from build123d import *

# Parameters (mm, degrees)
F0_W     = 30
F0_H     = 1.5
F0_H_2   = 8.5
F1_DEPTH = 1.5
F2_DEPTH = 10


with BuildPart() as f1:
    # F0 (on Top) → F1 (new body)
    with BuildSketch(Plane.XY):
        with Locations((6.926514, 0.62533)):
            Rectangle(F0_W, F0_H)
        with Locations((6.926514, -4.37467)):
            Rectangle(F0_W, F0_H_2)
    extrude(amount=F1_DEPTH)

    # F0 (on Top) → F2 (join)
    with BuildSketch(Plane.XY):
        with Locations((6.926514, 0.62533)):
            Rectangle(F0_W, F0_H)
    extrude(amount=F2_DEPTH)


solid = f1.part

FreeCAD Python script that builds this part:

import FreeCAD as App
import Part
import Sketcher

V = App.Vector

doc = App.newDocument("Part")
body = doc.addObject("PartDesign::Body", "Body")

sketch1 = body.newObject("Sketcher::SketchObject", "Sketch")
sketch1.AttachmentSupport = (doc.getObject("XY_Plane"), [""])
sketch1.MapMode = "FlatFace"
sketch1.addGeometry([
    Part.LineSegment(V(-8, 1, 0), V(-8, -9, 0)),
    Part.LineSegment(V(-8, -9, 0), V(22, -9, 0)),
    Part.LineSegment(V(22, -9, 0), V(22, 1, 0)),
    Part.LineSegment(V(22, 1, 0), V(-8, 1, 0)),
], False)
sketch1.addConstraint([
    Sketcher.Constraint("Coincident", 0, 2, 1, 1),
    Sketcher.Constraint("Coincident", 1, 2, 2, 1),
    Sketcher.Constraint("Coincident", 2, 2, 3, 1),
    Sketcher.Constraint("Coincident", 3, 2, 0, 1),
    Sketcher.Constraint("Vertical", 0),
    Sketcher.Constraint("Horizontal", 1),
    Sketcher.Constraint("Vertical", 2),
    Sketcher.Constraint("Horizontal", 3),
    Sketcher.Constraint("DistanceX", 1, 1, 1, 2, 30.0),
    Sketcher.Constraint("DistanceY", 0, 2, 0, 1, 10.0),
    Sketcher.Constraint("DistanceY", 0, 2, -1, 1, 8.62467),
    Sketcher.Constraint("DistanceX", 0, 2, -1, 1, 8.073486),
])
pad1 = body.newObject("PartDesign::Pad", "Pad")
pad1.Profile = sketch1
pad1.Length = 1.5

sketch2 = body.newObject("Sketcher::SketchObject", "Sketch001")
sketch2.AttachmentSupport = (doc.getObject("XY_Plane"), [""])
sketch2.MapMode = "FlatFace"
sketch2.addGeometry([
    Part.LineSegment(V(-8.1, 1.4, 0), V(-8.1, -0.1, 0)),
    Part.LineSegment(V(-8.1, -0.1, 0), V(21.9, -0.1, 0)),
    Part.LineSegment(V(21.9, -0.1, 0), V(21.9, 1.4, 0)),
    Part.LineSegment(V(21.9, 1.4, 0), V(-8.1, 1.4, 0)),
], False)
sketch2.addConstraint([
    Sketcher.Constraint("Coincident", 0, 2, 1, 1),
    Sketcher.Constraint("Coincident", 1, 2, 2, 1),
    Sketcher.Constraint("Coincident", 2, 2, 3, 1),
    Sketcher.Constraint("Coincident", 3, 2, 0, 1),
    Sketcher.Constraint("Vertical", 0),
    Sketcher.Constraint("Horizontal", 1),
    Sketcher.Constraint("Vertical", 2),
    Sketcher.Constraint("Horizontal", 3),
    Sketcher.Constraint("DistanceX", 1, 1, 1, 2, 30.0),
    Sketcher.Constraint("DistanceY", 0, 2, 0, 1, 1.5),
    Sketcher.Constraint("DistanceY", 0, 2, -1, 1, 0.12467),
    Sketcher.Constraint("DistanceX", 0, 2, -1, 1, 8.073486),
])
pad2 = body.newObject("PartDesign::Pad", "Pad001")
pad2.Profile = sketch2
pad2.Length = 10

doc.recompute()
